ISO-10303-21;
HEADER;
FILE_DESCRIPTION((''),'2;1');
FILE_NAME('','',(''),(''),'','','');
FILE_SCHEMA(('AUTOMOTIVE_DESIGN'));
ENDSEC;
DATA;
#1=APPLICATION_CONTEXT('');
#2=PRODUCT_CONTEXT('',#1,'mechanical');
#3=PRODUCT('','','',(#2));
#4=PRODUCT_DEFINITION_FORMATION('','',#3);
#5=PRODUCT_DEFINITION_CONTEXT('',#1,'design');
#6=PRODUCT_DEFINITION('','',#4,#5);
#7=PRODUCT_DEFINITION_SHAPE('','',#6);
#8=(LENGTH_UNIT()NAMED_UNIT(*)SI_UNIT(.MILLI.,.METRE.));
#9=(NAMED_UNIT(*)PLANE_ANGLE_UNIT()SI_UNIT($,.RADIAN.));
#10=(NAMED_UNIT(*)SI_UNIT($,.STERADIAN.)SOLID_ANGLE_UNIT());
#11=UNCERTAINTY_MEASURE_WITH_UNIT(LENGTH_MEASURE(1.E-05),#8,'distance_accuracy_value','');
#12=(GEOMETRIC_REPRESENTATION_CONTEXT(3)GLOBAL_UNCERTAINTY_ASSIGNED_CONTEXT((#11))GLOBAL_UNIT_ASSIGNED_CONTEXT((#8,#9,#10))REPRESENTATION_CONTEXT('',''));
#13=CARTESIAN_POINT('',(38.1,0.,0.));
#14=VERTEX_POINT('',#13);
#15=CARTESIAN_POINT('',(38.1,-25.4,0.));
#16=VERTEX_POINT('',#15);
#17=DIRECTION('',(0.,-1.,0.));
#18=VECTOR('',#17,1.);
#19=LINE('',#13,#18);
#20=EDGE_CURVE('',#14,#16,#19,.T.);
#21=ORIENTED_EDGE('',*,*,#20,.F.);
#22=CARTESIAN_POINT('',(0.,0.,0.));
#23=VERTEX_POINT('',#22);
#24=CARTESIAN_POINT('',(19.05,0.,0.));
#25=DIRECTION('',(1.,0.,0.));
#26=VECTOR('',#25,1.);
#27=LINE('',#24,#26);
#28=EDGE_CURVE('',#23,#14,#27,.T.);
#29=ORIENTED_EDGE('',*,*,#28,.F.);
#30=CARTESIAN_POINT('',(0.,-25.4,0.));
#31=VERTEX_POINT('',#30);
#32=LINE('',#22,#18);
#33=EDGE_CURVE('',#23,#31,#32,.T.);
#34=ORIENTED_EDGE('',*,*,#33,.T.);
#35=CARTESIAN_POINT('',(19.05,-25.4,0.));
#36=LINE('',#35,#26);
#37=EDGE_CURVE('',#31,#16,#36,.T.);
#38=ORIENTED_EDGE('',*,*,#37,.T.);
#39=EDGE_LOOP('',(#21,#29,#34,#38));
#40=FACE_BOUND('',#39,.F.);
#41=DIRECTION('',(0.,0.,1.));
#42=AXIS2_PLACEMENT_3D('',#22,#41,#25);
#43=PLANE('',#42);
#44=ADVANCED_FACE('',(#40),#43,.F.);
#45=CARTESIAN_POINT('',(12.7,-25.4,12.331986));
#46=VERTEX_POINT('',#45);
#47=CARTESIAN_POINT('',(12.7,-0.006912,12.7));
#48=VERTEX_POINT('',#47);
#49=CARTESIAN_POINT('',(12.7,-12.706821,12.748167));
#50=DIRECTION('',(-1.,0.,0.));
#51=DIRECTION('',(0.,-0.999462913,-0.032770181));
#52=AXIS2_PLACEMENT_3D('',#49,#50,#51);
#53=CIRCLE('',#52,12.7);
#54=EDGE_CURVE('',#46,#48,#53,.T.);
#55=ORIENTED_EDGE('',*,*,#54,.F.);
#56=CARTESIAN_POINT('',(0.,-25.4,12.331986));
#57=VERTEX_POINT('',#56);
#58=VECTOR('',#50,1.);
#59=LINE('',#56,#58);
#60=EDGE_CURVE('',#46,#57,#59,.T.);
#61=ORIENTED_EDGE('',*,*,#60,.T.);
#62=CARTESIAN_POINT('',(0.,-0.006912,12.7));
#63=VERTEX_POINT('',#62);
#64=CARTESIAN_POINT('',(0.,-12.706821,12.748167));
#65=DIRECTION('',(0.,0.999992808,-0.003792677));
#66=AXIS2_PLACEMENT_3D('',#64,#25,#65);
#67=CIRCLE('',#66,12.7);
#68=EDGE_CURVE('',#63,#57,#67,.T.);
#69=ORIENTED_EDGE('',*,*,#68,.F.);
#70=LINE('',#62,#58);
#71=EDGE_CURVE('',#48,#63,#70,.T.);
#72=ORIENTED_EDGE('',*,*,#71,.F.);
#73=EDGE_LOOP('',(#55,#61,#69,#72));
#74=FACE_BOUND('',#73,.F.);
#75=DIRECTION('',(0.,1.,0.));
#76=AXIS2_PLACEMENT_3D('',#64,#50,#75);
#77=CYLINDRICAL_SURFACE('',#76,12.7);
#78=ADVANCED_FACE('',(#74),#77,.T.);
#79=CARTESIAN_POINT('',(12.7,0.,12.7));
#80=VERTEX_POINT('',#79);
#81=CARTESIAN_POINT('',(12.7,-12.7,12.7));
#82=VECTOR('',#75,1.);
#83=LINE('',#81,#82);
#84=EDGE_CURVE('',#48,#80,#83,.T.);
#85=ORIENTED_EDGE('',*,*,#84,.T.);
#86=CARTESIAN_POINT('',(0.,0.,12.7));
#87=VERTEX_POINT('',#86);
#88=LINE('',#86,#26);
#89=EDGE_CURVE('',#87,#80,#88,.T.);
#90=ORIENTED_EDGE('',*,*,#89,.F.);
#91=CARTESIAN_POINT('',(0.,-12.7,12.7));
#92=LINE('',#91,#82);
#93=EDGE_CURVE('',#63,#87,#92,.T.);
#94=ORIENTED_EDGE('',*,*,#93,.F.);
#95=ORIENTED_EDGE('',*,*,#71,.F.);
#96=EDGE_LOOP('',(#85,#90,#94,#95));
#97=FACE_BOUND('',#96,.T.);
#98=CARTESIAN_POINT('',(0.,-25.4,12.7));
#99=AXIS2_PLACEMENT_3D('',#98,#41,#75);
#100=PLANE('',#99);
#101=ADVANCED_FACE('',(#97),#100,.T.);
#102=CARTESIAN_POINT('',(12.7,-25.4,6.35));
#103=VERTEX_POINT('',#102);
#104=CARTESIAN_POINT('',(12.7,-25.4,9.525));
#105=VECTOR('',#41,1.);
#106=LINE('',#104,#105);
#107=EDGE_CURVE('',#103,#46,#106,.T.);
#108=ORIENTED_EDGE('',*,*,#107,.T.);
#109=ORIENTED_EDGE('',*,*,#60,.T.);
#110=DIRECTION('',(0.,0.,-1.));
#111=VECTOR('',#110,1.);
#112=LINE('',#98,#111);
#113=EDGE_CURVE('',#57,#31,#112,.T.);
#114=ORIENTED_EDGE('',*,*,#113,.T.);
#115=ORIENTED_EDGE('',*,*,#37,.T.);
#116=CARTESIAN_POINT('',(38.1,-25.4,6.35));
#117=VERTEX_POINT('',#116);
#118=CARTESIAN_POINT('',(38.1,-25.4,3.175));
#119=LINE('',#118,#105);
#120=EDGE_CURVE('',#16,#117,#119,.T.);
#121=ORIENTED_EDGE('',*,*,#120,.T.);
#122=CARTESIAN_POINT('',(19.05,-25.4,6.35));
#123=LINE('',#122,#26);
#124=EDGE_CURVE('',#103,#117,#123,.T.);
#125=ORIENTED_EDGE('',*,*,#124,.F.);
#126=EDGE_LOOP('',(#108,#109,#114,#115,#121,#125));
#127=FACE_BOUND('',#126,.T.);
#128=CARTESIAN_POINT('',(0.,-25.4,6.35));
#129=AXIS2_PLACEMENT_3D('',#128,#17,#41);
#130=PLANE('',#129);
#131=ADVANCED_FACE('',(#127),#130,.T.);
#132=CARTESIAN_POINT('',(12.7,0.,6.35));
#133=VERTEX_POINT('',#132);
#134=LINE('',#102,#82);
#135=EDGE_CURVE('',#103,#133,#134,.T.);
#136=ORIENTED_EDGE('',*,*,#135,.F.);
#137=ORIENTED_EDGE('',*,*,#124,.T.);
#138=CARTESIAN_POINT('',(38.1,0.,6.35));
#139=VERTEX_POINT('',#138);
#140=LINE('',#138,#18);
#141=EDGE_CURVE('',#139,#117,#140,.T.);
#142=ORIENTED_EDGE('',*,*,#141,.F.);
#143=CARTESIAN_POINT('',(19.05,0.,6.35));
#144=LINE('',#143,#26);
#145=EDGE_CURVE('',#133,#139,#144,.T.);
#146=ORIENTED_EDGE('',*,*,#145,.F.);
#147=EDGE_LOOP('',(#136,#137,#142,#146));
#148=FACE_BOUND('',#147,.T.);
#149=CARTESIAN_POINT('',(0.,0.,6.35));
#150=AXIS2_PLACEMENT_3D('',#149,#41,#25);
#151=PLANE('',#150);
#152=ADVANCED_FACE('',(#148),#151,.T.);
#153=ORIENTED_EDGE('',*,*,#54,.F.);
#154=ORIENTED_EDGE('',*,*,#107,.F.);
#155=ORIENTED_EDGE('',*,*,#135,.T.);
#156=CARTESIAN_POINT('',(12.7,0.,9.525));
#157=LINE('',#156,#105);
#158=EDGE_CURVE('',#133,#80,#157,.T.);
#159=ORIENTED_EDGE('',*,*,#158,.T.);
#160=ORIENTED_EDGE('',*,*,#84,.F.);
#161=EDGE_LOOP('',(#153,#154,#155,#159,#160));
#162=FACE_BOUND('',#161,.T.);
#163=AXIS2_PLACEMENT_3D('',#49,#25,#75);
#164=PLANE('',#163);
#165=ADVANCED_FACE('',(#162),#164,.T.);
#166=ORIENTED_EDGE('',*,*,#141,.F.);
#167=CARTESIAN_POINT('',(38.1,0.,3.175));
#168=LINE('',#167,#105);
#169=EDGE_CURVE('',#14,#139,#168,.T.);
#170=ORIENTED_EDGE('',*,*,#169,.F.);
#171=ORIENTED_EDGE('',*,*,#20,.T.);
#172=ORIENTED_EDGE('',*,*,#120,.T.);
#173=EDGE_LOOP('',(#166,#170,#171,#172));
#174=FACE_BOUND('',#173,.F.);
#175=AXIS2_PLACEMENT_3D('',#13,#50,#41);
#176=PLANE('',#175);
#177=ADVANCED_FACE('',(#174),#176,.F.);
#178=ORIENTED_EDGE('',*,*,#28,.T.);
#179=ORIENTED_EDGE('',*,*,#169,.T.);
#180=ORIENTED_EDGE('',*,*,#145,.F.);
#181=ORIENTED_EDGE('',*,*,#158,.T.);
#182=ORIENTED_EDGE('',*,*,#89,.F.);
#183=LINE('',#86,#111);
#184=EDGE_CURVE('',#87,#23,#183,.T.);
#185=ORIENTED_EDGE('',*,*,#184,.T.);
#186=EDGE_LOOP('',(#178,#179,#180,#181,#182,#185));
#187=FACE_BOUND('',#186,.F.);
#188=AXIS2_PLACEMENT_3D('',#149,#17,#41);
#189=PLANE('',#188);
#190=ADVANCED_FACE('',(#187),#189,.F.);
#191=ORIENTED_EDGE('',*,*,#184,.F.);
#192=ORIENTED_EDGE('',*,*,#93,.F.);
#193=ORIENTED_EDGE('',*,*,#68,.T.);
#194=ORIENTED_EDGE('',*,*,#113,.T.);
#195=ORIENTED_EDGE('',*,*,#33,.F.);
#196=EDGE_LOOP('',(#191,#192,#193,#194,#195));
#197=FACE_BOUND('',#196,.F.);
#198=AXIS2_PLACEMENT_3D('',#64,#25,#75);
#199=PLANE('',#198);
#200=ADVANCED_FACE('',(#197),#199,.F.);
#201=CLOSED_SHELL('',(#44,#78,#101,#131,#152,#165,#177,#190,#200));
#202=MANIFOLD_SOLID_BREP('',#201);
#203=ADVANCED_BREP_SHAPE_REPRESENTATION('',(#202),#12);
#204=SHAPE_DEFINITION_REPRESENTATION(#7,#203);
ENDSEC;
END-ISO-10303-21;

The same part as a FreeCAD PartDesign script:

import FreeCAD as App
import Part
import Sketcher
from FreeCAD import Vector
Q = App.Units.Quantity

doc = App.newDocument("Part")
body = doc.addObject("PartDesign::Body", "Body")

# Sketch on XZ plane
sketch1 = body.newObject("Sketcher::SketchObject", "Sketch")
sketch1.AttachmentSupport = (doc.getObject("XZ_Plane"), [""])
sketch1.MapMode = "FlatFace"
sketch1.addGeometry([
    Part.LineSegment(Vector(0, 6, 0), Vector(0, 0, 0)),
    Part.LineSegment(Vector(0, 0, 0), Vector(38, 0, 0)),
    Part.LineSegment(Vector(38, 0, 0), Vector(38, 6, 0)),
    Part.LineSegment(Vector(38, 6, 0), Vector(0, 6, 0)),
], False)
sketch1.addConstraint([
    Sketcher.Constraint("Coincident", 0, 2, 1, 1),
    Sketcher.Constraint("Coincident", 1, 2, 2, 1),
    Sketcher.Constraint("Coincident", 2, 2, 3, 1),
    Sketcher.Constraint("Coincident", 3, 2, 0, 1),
    Sketcher.Constraint("Vertical", 0),
    Sketcher.Constraint("Horizontal", 1),
    Sketcher.Constraint("Vertical", 2),
    Sketcher.Constraint("Horizontal", 3),
    Sketcher.Constraint("Coincident", 0, 2, -1, 1),
    Sketcher.Constraint("DistanceX", 1, 1, 1, 2, Q("1.5 in")),
    Sketcher.Constraint("DistanceY", 0, 2, 0, 1, Q("0.25 in")),
])
pad1 = body.newObject("PartDesign::Pad", "Pad")
pad1.Profile = sketch1
pad1.Length = Q("1 in")

# Sketch on YZ plane
sketch2 = body.newObject("Sketcher::SketchObject", "Sketch001")
sketch2.AttachmentSupport = (doc.getObject("YZ_Plane"), [""])
sketch2.MapMode = "FlatFace"
sketch2.addGeometry([
    Part.LineSegment(Vector(-25, 13, 0), Vector(-25, 6, 0)),
    Part.LineSegment(Vector(-25, 6, 0), Vector(0, 6, 0)),
    Part.LineSegment(Vector(0, 6, 0), Vector(0, 13, 0)),
    Part.LineSegment(Vector(0, 13, 0), Vector(-25, 13, 0)),
], False)
sketch2.addConstraint([
    Sketcher.Constraint("Coincident", 0, 2, 1, 1),
    Sketcher.Constraint("Coincident", 1, 2, 2, 1),
    Sketcher.Constraint("Coincident", 2, 2, 3, 1),
    Sketcher.Constraint("Coincident", 3, 2, 0, 1),
    Sketcher.Constraint("Vertical", 0),
    Sketcher.Constraint("Horizontal", 1),
    Sketcher.Constraint("Vertical", 2),
    Sketcher.Constraint("Horizontal", 3),
    Sketcher.Constraint("PointOnObject", 1, 2, -2),
    Sketcher.Constraint("DistanceX", 1, 1, 1, 2, Q("1 in")),
    Sketcher.Constraint("DistanceY", 0, 2, 0, 1, Q("0.25 in")),
    Sketcher.Constraint("DistanceY", -1, 1, 2, 2, Q("0.5 in")),
])
pad2 = body.newObject("PartDesign::Pad", "Pad001")
pad2.Profile = sketch2
pad2.Length = Q("0.5 in")

# Sketch on YZ plane
sketch3 = body.newObject("Sketcher::SketchObject", "Sketch002")
sketch3.AttachmentSupport = (doc.getObject("YZ_Plane"), [""])
sketch3.MapMode = "FlatFace"
sketch3.addGeometry(Part.Circle(Vector(-13, 13, 0), Vector(0, 0, 1), 13), False)
sketch3.addConstraint([
    Sketcher.Constraint("Diameter", 0, Q("1 in")),
    Sketcher.Constraint("DistanceX", 0, 3, -1, 1, Q("12.706821 mm")),
    Sketcher.Constraint("DistanceY", -1, 1, 0, 3, Q("12.748167 mm")),
])
pad3 = body.newObject("PartDesign::Pad", "Pad002")
pad3.Profile = sketch3
pad3.Length = Q("0.5 in")

doc.recompute()
